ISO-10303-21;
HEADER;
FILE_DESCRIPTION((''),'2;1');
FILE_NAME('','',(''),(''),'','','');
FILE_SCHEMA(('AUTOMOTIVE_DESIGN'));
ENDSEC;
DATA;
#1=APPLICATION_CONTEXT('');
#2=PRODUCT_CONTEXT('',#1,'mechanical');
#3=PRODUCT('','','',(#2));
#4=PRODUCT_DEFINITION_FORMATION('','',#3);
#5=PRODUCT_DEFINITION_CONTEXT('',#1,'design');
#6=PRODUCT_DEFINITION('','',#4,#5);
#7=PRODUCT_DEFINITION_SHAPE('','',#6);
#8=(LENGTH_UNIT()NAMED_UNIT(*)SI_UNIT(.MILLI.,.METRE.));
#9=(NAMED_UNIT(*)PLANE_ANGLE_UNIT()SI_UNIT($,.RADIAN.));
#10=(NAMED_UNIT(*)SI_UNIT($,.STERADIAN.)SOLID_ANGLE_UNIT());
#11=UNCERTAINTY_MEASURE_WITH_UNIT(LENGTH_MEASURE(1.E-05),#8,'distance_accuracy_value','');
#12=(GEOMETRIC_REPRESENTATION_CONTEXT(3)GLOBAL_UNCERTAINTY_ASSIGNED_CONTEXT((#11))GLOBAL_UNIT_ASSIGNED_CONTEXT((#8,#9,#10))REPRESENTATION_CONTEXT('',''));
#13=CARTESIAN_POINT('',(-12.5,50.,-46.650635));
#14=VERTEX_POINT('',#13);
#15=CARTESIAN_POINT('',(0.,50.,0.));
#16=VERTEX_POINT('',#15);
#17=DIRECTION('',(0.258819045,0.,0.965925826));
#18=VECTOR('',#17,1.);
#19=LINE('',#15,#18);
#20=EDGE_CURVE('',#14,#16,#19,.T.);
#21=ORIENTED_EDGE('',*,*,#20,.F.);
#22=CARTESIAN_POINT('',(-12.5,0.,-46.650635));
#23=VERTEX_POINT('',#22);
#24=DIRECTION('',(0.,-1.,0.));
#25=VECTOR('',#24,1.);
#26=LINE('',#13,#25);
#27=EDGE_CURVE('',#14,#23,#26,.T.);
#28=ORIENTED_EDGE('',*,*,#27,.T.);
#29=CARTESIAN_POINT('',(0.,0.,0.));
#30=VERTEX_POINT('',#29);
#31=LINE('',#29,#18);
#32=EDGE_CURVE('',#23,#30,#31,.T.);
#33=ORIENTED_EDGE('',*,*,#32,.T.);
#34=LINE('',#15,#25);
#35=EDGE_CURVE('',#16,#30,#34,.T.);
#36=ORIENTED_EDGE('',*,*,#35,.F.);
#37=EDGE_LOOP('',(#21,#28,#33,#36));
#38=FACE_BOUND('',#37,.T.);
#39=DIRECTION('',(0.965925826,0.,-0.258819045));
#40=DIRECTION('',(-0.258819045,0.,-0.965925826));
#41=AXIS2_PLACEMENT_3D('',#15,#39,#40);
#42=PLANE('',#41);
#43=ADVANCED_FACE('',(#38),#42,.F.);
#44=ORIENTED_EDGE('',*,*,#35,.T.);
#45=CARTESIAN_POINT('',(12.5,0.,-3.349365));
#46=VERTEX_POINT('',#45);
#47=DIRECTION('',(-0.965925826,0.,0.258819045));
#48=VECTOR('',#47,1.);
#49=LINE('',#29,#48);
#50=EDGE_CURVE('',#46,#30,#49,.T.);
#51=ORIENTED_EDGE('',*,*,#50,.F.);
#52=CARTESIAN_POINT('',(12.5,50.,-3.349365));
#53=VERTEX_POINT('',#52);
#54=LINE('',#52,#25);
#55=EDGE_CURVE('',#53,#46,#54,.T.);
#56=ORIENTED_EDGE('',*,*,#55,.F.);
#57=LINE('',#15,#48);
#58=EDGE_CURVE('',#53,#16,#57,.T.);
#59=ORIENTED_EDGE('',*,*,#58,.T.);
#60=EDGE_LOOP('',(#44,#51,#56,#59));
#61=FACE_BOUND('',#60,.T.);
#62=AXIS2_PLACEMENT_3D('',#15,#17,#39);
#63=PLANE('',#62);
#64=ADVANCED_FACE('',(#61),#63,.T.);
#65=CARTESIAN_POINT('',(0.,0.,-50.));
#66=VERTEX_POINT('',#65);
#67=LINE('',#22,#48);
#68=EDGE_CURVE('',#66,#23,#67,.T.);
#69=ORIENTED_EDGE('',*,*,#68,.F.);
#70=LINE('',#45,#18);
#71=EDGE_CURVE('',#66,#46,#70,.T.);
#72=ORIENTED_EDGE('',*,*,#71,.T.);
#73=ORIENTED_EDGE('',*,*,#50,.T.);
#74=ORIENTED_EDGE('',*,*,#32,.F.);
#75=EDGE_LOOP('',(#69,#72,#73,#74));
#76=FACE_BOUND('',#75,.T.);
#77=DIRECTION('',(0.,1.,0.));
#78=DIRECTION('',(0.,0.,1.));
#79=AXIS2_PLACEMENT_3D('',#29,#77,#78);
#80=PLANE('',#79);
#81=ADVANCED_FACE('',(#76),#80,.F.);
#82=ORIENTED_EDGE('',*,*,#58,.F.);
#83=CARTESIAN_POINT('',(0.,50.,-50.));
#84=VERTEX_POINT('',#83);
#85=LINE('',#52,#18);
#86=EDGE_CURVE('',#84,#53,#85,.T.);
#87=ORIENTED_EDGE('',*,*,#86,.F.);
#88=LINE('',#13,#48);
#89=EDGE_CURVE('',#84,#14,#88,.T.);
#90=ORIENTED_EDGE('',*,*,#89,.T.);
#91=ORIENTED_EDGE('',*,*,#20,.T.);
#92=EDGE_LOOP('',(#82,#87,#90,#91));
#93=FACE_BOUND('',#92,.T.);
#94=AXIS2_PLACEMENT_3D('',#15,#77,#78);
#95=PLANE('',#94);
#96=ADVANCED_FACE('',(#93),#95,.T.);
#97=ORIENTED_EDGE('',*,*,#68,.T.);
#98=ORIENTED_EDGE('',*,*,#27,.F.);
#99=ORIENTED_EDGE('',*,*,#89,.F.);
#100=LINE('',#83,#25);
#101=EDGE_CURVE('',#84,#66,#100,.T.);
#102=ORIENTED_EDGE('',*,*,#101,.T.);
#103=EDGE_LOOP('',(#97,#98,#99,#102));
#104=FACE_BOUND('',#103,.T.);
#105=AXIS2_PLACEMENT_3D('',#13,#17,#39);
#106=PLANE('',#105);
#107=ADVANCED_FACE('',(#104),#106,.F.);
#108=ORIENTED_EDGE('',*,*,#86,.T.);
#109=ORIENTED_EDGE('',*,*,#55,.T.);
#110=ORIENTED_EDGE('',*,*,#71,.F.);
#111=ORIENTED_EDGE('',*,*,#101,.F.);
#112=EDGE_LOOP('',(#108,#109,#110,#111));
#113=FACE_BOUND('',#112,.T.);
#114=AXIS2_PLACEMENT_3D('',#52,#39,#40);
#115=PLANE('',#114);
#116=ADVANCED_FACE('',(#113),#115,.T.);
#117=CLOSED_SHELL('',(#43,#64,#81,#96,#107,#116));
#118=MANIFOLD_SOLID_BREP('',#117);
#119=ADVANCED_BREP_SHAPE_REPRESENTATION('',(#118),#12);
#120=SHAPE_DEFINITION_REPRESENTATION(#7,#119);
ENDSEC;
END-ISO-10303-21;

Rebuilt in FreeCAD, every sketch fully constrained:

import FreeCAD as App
import Part
import Sketcher
Q = App.Units.Quantity

doc = App.newDocument("Part")
body = doc.addObject("PartDesign::Body", "Body")

sketch1 = body.newObject("Sketcher::SketchObject", "Sketch")
sketch1.AttachmentSupport = (doc.getObject("XZ_Plane"), [""])
sketch1.MapMode = "FlatFace"
sketch1.addGeometry([
    Part.LineSegment(App.Vector(0, -50, 0), App.Vector(-12.5, -46.650635, 0)),
    Part.LineSegment(App.Vector(-12.5, -46.650635, 0), App.Vector(0, 0, 0)),
    Part.LineSegment(App.Vector(0, 0, 0), App.Vector(12.5, -3.349365, 0)),
    Part.LineSegment(App.Vector(12.5, -3.349365, 0), App.Vector(0, -50, 0)),
], False)
sketch1.addConstraint([
    Sketcher.Constraint("Coincident", 0, 2, 1, 1),
    Sketcher.Constraint("Coincident", 1, 2, 2, 1),
    Sketcher.Constraint("Coincident", 2, 2, 3, 1),
    Sketcher.Constraint("Coincident", 3, 2, 0, 1),
    Sketcher.Constraint("Coincident", 1, 2, -1, 1),
    Sketcher.Constraint("PointOnObject", 3, 2, -2),
    Sketcher.Constraint("Perpendicular", 0, 1),
    Sketcher.Constraint("Perpendicular", 1, 2),
    Sketcher.Constraint("Perpendicular", 2, 3),
    Sketcher.Constraint("Angle", 0, Q("165 deg")),
    Sketcher.Constraint("DistanceY", 3, 2, -1, 1, 50.0),
])
pad1 = body.newObject("PartDesign::Pad", "Pad")
pad1.Profile = sketch1
pad1.Length = 50
pad1.Reversed = True

doc.recompute()
